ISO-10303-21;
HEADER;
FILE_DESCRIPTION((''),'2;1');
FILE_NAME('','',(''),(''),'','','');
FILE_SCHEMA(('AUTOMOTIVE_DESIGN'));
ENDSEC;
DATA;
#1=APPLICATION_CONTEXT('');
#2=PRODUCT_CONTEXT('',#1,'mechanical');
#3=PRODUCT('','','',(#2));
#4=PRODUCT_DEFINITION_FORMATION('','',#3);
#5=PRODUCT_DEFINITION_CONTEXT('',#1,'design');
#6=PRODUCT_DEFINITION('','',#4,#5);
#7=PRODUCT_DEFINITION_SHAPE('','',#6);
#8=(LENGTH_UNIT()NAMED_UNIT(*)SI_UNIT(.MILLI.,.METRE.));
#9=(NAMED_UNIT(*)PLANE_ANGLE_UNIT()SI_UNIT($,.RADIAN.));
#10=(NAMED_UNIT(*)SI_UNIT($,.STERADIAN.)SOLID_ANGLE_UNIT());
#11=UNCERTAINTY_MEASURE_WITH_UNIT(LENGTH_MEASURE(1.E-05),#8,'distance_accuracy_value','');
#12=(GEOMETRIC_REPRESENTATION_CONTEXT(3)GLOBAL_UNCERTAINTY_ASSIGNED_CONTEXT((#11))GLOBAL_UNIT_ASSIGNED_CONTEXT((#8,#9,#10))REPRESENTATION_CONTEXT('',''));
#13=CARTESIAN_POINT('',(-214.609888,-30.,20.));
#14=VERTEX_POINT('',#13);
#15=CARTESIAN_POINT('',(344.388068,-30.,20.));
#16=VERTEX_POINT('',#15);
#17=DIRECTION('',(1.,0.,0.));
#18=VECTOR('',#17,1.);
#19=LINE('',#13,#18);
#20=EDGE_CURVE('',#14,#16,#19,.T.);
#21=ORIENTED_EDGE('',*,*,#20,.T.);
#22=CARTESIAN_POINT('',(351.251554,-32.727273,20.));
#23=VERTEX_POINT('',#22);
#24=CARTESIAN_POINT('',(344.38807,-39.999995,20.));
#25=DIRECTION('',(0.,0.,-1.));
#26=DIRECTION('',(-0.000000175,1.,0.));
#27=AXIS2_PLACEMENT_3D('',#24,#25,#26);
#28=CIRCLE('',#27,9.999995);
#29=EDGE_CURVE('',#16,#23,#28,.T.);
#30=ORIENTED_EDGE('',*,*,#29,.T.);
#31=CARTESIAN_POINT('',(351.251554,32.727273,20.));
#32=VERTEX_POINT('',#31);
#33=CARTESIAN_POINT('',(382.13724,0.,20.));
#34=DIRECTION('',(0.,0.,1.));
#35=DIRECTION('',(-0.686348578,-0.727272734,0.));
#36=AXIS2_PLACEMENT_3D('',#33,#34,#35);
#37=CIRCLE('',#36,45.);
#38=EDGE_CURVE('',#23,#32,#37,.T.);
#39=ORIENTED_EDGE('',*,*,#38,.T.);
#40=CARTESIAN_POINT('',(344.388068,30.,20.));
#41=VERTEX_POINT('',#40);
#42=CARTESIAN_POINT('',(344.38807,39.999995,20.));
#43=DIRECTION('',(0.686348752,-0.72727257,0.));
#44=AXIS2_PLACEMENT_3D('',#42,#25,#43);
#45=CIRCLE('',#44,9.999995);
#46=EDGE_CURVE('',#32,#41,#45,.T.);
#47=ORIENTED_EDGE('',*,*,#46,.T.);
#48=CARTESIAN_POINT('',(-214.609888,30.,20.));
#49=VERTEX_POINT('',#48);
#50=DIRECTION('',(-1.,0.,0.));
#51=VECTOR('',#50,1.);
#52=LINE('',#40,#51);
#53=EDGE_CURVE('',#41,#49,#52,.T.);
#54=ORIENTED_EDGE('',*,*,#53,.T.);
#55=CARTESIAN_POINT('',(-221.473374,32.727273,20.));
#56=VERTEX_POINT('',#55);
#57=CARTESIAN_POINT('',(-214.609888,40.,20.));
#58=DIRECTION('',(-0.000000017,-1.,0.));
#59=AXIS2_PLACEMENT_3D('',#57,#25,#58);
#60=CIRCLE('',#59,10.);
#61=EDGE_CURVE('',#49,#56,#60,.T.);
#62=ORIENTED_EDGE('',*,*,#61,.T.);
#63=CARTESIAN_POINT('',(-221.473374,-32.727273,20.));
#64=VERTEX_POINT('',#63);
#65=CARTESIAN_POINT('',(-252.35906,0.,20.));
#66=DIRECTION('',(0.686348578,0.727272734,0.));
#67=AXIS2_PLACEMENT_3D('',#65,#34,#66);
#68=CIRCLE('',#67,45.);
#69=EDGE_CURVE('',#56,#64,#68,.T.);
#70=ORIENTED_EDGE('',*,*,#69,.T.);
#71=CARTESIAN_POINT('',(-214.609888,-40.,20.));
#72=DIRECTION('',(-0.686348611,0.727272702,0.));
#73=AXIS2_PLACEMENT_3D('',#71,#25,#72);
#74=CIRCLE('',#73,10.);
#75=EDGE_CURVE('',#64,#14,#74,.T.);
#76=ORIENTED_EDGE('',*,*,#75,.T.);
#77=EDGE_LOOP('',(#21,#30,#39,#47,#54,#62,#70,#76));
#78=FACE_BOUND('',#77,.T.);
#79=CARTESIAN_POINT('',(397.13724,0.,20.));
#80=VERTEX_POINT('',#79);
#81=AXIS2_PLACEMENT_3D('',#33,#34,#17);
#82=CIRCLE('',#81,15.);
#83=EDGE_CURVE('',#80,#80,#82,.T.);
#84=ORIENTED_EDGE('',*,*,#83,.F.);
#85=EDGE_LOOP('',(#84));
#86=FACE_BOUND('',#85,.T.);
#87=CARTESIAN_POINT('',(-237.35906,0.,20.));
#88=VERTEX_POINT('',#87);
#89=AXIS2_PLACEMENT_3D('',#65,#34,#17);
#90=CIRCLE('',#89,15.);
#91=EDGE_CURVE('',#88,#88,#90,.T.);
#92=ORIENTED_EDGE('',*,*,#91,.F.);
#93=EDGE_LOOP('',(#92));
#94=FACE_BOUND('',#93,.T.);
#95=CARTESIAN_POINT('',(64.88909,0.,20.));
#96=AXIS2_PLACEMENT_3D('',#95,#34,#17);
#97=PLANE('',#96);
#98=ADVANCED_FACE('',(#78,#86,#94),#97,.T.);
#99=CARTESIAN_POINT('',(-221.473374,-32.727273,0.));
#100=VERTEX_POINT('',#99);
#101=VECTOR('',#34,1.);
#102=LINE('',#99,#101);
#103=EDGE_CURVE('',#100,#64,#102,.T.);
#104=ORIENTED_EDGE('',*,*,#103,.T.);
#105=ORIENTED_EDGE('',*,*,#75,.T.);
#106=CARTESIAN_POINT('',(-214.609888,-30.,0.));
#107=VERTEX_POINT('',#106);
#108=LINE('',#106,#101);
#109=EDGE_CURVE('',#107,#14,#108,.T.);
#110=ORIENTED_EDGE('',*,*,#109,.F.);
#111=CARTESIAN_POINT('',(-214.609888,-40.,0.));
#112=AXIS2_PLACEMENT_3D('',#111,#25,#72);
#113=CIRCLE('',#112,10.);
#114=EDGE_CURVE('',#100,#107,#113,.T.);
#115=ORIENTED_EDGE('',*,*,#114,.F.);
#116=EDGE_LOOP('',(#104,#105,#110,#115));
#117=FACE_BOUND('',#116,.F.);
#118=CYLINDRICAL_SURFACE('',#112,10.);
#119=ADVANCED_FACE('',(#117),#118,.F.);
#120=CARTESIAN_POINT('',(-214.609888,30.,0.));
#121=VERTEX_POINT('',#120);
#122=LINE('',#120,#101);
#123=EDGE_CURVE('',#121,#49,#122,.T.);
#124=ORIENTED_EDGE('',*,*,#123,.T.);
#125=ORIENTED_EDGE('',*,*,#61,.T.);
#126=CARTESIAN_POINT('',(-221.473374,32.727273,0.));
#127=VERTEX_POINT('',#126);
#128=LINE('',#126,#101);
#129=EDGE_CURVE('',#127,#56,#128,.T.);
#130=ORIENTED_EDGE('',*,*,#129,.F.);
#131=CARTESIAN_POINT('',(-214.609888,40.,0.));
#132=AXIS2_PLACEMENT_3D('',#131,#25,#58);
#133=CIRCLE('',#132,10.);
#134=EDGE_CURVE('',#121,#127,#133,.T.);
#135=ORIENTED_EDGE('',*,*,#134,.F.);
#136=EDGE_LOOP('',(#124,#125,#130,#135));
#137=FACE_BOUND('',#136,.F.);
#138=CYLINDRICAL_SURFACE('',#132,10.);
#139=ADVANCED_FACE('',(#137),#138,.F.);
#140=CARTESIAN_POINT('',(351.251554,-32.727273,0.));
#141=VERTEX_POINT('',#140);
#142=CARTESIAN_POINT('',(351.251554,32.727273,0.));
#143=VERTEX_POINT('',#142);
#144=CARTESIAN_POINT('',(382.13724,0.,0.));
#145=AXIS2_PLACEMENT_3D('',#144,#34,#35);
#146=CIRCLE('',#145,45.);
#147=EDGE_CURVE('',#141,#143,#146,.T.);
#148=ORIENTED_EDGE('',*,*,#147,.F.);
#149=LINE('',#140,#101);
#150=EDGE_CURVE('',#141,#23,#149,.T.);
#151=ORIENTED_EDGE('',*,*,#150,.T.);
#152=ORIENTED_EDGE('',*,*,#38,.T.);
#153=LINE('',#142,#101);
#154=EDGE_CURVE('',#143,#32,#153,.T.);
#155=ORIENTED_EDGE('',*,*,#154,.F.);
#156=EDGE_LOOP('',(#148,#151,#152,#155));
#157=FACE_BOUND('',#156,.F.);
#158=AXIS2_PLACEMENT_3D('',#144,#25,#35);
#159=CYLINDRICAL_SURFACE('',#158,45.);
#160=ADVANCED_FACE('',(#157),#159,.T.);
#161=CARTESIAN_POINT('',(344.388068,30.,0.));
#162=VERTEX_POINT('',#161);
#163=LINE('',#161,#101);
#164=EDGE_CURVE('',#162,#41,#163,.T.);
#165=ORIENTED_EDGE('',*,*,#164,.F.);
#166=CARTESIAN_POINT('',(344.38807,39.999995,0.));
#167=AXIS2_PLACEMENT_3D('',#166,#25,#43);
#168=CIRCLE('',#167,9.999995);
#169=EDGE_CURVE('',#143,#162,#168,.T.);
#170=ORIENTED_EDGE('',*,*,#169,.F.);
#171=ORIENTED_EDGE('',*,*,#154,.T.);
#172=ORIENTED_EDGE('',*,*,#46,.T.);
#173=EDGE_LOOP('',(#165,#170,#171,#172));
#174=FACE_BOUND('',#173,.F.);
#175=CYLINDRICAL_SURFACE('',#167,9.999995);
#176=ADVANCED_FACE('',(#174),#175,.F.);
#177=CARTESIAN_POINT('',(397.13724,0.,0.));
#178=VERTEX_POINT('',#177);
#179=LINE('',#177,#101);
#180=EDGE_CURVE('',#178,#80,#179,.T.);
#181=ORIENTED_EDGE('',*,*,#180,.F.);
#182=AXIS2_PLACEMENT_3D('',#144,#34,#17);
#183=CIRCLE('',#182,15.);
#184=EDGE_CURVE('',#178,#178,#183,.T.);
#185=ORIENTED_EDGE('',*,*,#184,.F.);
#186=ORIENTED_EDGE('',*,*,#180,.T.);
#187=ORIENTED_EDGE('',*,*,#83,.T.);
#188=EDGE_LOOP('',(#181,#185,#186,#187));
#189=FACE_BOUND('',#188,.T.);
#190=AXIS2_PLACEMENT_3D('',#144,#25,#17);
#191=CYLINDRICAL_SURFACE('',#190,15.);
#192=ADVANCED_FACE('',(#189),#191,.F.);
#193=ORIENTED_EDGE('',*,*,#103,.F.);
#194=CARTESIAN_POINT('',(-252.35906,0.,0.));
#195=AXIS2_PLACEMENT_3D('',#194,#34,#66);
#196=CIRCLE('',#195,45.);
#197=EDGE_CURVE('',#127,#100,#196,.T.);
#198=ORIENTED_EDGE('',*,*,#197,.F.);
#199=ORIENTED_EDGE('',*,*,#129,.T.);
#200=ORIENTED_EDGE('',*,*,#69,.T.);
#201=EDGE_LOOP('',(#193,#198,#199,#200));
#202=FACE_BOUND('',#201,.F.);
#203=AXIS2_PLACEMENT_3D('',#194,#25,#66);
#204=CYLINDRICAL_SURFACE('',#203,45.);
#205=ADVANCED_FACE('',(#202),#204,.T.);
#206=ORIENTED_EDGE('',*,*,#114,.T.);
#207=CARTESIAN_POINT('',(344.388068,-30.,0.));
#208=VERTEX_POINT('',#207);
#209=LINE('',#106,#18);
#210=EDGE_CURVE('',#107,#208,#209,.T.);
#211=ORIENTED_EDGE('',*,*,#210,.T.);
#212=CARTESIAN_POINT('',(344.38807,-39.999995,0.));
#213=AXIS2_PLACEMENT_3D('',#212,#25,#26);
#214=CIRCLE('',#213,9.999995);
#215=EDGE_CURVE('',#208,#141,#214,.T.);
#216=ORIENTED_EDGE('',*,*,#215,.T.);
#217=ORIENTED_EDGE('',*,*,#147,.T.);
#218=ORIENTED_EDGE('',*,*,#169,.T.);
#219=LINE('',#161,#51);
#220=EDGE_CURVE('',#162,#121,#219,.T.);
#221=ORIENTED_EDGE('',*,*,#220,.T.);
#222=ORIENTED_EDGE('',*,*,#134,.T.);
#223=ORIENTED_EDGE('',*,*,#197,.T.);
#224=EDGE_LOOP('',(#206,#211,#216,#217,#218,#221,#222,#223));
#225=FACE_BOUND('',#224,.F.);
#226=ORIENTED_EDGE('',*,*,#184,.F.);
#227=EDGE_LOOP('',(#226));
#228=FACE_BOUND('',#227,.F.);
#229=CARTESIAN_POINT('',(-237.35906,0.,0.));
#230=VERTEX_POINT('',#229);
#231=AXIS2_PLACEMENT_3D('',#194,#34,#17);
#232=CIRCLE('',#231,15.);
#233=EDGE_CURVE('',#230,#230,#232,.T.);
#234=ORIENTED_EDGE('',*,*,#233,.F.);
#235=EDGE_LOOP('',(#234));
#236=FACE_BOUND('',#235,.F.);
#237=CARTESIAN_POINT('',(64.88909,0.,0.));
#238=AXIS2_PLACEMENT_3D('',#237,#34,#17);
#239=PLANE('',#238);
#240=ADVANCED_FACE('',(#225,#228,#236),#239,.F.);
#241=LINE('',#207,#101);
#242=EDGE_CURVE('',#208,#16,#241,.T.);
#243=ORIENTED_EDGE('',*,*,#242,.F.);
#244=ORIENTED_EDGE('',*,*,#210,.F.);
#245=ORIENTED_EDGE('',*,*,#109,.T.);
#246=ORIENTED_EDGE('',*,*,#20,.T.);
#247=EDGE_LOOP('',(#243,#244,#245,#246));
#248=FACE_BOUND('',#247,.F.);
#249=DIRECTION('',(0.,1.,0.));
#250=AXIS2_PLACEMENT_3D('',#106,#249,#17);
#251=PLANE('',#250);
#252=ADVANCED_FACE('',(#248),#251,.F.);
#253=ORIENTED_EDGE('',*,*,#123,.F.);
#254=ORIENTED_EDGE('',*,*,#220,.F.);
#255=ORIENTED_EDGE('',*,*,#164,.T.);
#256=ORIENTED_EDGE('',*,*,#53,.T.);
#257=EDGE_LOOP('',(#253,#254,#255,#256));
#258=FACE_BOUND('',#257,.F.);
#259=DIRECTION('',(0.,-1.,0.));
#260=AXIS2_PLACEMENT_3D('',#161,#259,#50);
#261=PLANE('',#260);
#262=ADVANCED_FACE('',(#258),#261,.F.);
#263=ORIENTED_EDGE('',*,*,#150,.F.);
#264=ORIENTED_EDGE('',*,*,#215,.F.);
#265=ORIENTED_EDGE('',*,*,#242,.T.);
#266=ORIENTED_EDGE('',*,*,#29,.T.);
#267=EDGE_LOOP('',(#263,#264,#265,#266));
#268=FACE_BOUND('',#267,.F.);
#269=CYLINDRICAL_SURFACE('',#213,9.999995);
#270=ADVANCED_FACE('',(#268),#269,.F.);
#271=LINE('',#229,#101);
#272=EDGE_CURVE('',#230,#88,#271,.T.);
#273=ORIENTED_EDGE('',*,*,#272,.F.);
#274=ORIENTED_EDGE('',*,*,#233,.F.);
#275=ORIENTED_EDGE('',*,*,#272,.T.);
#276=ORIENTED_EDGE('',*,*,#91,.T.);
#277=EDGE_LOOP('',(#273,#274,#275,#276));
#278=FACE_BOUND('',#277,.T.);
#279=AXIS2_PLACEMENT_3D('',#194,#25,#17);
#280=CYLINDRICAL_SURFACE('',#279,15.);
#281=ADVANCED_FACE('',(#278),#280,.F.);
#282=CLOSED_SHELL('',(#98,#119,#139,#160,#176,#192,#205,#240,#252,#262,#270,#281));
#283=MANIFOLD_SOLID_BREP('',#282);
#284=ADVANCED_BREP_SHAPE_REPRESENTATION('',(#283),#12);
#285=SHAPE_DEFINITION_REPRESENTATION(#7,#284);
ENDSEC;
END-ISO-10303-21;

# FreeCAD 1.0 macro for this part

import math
import FreeCAD as App
import Part
import Sketcher
from FreeCAD import Vector

doc = App.newDocument("Part")
params = doc.addObject("Spreadsheet::Sheet", "Params")
for row, (alias, value) in enumerate([
    ("sketch1_diameter", "30 mm"),
    ("sketch1_radius", "45 mm"),
    ("sketch1_radius2", "10 mm"),
    ("pad1_length", "20 mm"),
], start=1):
    params.set(f"A{row}", alias)
    params.set(f"B{row}", "=" + value)
    params.setAlias(f"B{row}", alias)

body = doc.addObject("PartDesign::Body", "Body")

# Sketch on XY plane
sketch1 = doc.addObject("Sketcher::SketchObject", "Sketch")
body.addObject(sketch1)
sketch1.AttachmentSupport = (doc.XY_Plane, [""])
sketch1.MapMode = "FlatFace"
sketch1.addGeometry(Part.ArcOfCircle(Part.Circle(Vector(344, -40, 0), Vector(0, 0, 1), 10), math.radians(47), math.radians(90)), False)
sketch1.addGeometry(Part.ArcOfCircle(Part.Circle(Vector(382, 0, 0), Vector(0, 0, 1), 45), math.radians(-133), math.radians(133)), False)
sketch1.addGeometry(Part.ArcOfCircle(Part.Circle(Vector(344, 40, 0), Vector(0, 0, 1), 10), math.radians(-90), math.radians(-47)), False)
sketch1.addGeometry(Part.LineSegment(Vector(344, 30, 0), Vector(-215, 30, 0)), False)
sketch1.addGeometry(Part.ArcOfCircle(Part.Circle(Vector(-215, 40, 0), Vector(0, 0, 1), 10), math.radians(-133), math.radians(-90)), False)
sketch1.addGeometry(Part.ArcOfCircle(Part.Circle(Vector(-252, 0, 0), Vector(0, 0, 1), 45), math.radians(47), math.radians(313)), False)
sketch1.addGeometry(Part.ArcOfCircle(Part.Circle(Vector(-215, -40, 0), Vector(0, 0, 1), 10), math.radians(90), math.radians(133)), False)
sketch1.addGeometry(Part.LineSegment(Vector(-215, -30, 0), Vector(344, -30, 0)), False)
sketch1.addGeometry(Part.Circle(Vector(-252, 0, 0), Vector(0, 0, 1), 15), False)
sketch1.addGeometry(Part.Circle(Vector(382, 0, 0), Vector(0, 0, 1), 15), False)
sketch1.addConstraint(Sketcher.Constraint("Tangent", 0, 1, 1, 1))
sketch1.addConstraint(Sketcher.Constraint("Tangent", 1, 2, 2, 2))
sketch1.addConstraint(Sketcher.Constraint("Tangent", 2, 1, 3, 1))
sketch1.addConstraint(Sketcher.Constraint("Tangent", 3, 2, 4, 2))
sketch1.addConstraint(Sketcher.Constraint("Tangent", 4, 1, 5, 1))
sketch1.addConstraint(Sketcher.Constraint("Tangent", 5, 2, 6, 2))
sketch1.addConstraint(Sketcher.Constraint("Tangent", 6, 1, 7, 1))
sketch1.addConstraint(Sketcher.Constraint("Tangent", 7, 2, 0, 2))
sketch1.addConstraint(Sketcher.Constraint("Horizontal", 3))
sketch1.addConstraint(Sketcher.Constraint("Horizontal", 7))
sketch1.addConstraint(Sketcher.Constraint("Coincident", 8, 3, 5, 3))
sketch1.addConstraint(Sketcher.Constraint("Coincident", 9, 3, 1, 3))
sketch1.addConstraint(Sketcher.Constraint("Equal", 0, 2))
sketch1.addConstraint(Sketcher.Constraint("Equal", 1, 5))
sketch1.addConstraint(Sketcher.Constraint("Equal", 4, 6))
sketch1.addConstraint(Sketcher.Constraint("Equal", 8, 9))
sketch1.addConstraint(Sketcher.Constraint("Symmetric", 0, 3, 2, 3, -1))
sketch1.addConstraint(Sketcher.Constraint("PointOnObject", 5, 3, -1))
sketch1.addConstraint(Sketcher.Constraint("Horizontal", 1, 2, 4, 1))
sketch1.addConstraint(Sketcher.Constraint("Diameter", 8, 30.0))
sketch1.addConstraint(Sketcher.Constraint("Radius", 1, 45.0))
sketch1.addConstraint(Sketcher.Constraint("Radius", 4, 10.0))
sketch1.addConstraint(Sketcher.Constraint("DistanceY", -1, 1, 4, 3, 40.0))
sketch1.addConstraint(Sketcher.Constraint("DistanceX", 5, 3, 1, 3, 634.4963))
sketch1.addConstraint(Sketcher.Constraint("DistanceX", -1, 1, 0, 3, 344.38807))
sketch1.setExpression("Constraints[19]", "Params.sketch1_diameter")
sketch1.setExpression("Constraints[20]", "Params.sketch1_radius")
sketch1.setExpression("Constraints[21]", "Params.sketch1_radius2")
pad1 = doc.addObject("PartDesign::Pad", "Pad")
body.addObject(pad1)
pad1.Profile = sketch1
pad1.setExpression("Length", "Params.pad1_length")

doc.recompute()
